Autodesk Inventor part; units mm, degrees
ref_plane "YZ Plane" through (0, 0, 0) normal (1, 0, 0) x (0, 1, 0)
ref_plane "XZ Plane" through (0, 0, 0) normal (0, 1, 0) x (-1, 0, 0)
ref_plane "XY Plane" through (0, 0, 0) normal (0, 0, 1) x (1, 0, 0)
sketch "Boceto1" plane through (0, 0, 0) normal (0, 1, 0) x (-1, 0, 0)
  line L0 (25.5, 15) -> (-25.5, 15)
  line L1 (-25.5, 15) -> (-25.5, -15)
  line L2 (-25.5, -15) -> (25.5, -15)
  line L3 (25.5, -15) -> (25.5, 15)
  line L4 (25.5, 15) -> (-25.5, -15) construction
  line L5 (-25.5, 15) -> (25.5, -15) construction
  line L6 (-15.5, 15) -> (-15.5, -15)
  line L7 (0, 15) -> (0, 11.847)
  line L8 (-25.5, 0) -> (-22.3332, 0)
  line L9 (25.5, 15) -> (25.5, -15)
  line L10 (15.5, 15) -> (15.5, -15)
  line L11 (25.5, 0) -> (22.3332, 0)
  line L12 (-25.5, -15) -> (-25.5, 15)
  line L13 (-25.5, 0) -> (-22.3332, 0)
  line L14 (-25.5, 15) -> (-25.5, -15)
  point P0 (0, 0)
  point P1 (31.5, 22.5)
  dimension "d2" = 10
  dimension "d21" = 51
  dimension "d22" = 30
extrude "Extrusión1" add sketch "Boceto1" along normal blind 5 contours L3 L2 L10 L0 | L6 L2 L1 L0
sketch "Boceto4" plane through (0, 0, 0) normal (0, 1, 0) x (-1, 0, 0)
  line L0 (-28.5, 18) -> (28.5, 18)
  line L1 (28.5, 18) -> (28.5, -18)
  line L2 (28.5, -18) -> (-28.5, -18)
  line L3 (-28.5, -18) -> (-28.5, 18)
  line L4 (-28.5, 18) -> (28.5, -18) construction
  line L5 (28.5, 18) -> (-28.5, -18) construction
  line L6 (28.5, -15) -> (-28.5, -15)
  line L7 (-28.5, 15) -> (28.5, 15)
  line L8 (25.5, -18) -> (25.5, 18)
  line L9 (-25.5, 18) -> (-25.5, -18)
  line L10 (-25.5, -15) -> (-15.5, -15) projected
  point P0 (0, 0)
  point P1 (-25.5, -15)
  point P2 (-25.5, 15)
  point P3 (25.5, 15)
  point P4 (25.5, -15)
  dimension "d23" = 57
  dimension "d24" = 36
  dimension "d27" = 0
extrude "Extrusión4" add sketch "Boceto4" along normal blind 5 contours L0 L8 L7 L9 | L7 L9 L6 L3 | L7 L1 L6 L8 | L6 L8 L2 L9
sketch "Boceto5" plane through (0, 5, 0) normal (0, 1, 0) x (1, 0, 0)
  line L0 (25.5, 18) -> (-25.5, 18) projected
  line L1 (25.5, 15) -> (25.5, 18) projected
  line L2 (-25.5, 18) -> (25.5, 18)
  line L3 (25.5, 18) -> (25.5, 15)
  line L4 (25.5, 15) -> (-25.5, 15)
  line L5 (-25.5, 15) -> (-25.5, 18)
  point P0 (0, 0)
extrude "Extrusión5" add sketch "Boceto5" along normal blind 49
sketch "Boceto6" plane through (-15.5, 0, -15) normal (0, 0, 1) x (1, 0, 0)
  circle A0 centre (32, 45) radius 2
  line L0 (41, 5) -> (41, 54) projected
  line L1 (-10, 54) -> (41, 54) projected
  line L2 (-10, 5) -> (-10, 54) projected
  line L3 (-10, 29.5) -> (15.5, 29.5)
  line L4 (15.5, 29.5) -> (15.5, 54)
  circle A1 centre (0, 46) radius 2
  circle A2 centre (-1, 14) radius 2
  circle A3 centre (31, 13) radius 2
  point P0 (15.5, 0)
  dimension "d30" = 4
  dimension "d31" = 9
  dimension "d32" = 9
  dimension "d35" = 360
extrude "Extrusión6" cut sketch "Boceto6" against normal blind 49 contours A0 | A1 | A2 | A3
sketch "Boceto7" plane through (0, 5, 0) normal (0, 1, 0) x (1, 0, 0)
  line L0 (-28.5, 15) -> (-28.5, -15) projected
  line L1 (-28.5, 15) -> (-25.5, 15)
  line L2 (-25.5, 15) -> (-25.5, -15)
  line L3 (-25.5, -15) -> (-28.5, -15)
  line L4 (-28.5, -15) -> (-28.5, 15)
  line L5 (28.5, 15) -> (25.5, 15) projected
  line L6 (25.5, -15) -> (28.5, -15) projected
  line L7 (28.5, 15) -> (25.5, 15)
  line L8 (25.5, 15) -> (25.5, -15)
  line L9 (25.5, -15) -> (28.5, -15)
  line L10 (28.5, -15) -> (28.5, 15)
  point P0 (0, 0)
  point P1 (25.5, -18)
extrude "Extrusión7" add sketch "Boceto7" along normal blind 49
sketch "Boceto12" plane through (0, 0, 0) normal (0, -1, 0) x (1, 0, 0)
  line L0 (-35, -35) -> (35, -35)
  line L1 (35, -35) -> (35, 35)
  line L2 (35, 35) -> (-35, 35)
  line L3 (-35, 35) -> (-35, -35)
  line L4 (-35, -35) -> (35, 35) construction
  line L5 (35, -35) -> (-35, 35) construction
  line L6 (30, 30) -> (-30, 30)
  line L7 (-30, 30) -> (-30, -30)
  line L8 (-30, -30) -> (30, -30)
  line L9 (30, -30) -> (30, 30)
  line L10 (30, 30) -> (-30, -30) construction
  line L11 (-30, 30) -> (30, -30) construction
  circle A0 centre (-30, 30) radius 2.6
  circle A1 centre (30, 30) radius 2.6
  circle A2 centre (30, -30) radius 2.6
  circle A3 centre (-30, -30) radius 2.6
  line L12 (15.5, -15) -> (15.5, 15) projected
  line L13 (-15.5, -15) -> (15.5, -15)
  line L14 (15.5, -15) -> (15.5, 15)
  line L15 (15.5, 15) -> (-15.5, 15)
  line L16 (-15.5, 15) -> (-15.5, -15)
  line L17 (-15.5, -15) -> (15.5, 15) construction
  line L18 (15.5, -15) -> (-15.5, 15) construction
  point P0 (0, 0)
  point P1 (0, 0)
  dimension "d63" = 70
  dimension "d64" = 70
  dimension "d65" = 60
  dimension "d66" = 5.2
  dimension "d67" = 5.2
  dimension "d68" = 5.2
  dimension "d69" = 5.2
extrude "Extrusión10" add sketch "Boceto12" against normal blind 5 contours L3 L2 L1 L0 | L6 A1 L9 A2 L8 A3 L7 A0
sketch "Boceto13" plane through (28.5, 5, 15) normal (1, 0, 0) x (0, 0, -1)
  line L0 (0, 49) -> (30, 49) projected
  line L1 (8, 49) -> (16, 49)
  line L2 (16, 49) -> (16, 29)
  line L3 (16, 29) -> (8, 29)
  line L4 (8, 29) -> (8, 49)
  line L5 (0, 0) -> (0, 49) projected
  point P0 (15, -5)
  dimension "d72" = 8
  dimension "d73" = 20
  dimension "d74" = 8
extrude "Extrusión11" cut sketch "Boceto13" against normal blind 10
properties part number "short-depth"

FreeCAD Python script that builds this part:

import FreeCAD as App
import Part
import Sketcher
from FreeCAD import Vector


def add_polygon(sketch, points):
    """Adds a closed chain of lines whose ends are joined by coincident constraints."""
    first, n = sketch.GeometryCount, len(points)
    for a, b in zip(points, points[1:] + points[:1]):
        sketch.addGeometry(Part.LineSegment(App.Vector(*a, 0), App.Vector(*b, 0)), False)
    for i in range(n):
        sketch.addConstraint(Sketcher.Constraint("Coincident", first + i, 2, first + (i + 1) % n, 1))

doc = App.newDocument("Part")
body = doc.addObject("PartDesign::Body", "Body")
body.AllowCompound = True

sketch1 = body.newObject("Sketcher::SketchObject", "Sketch")
sketch1.AttachmentSupport = (doc.getObject("XZ_Plane"), [""])
sketch1.MapMode = "FlatFace"
add_polygon(sketch1, [(-26, -15), (-26, 15), (-16, 15), (-16, -15)])
add_polygon(sketch1, [(16, -15), (16, 15), (26, 15), (26, -15)])
sketch1.addConstraint([
    Sketcher.Constraint("Vertical", 0),
    Sketcher.Constraint("Horizontal", 1),
    Sketcher.Constraint("Vertical", 2),
    Sketcher.Constraint("Horizontal", 3),
    Sketcher.Constraint("Vertical", 4),
    Sketcher.Constraint("Horizontal", 5),
    Sketcher.Constraint("Vertical", 6),
    Sketcher.Constraint("Horizontal", 7),
    Sketcher.Constraint("Symmetric", 2, 2, 4, 2, -1, 1),
    Sketcher.Constraint("Symmetric", 0, 2, 6, 2, -1, 1),
    Sketcher.Constraint("Horizontal", 1, 2, 4, 2),
    Sketcher.Constraint("DistanceX", 1, 1, 1, 2, 10.0),
    Sketcher.Constraint("DistanceY", 0, 1, 0, 2, 30.0),
    Sketcher.Constraint("DistanceX", 0, 2, 5, 2, 51.0),
])
pad1 = body.newObject("PartDesign::Pad", "Pad")
pad1.Profile = sketch1
pad1.Length = 5
pad1.Reversed = True

sketch2 = body.newObject("Sketcher::SketchObject", "Sketch001")
sketch2.AttachmentSupport = (doc.getObject("XZ_Plane"), [""])
sketch2.MapMode = "FlatFace"
add_polygon(sketch2, [(-25.5, 18), (25.5, 18), (25.5, 15), (-25.5, 15)])
add_polygon(sketch2, [(25.5, 15), (28.5, 15), (28.5, -15), (25.5, -15)])
add_polygon(sketch2, [(-28.5, 15), (-25.5, 15), (-25.5, -15), (-28.5, -15)])
add_polygon(sketch2, [(-25.5, -15), (25.5, -15), (25.5, -18), (-25.5, -18)])
sketch2.addConstraint([
    Sketcher.Constraint("Horizontal", 0),
    Sketcher.Constraint("Vertical", 1),
    Sketcher.Constraint("Horizontal", 2),
    Sketcher.Constraint("Vertical", 3),
    Sketcher.Constraint("Horizontal", 4),
    Sketcher.Constraint("Vertical", 5),
    Sketcher.Constraint("Horizontal", 6),
    Sketcher.Constraint("Vertical", 7),
    Sketcher.Constraint("Horizontal", 8),
    Sketcher.Constraint("Vertical", 9),
    Sketcher.Constraint("Horizontal", 10),
    Sketcher.Constraint("Vertical", 11),
    Sketcher.Constraint("Horizontal", 12),
    Sketcher.Constraint("Vertical", 13),
    Sketcher.Constraint("Horizontal", 14),
    Sketcher.Constraint("Vertical", 15),
    Sketcher.Constraint("Coincident", 7, 2, 1, 2),
    Sketcher.Constraint("Coincident", 8, 2, 2, 2),
    Sketcher.Constraint("Coincident", 12, 2, 6, 2),
    Sketcher.Constraint("Coincident", 15, 2, 9, 2),
    Sketcher.Constraint("Symmetric", 2, 2, 6, 2, -1, 1),
    Sketcher.Constraint("Equal", 6, 8),
    Sketcher.Constraint("Equal", 10, 1),
    Sketcher.Constraint("Equal", 3, 13),
    Sketcher.Constraint("DistanceX", 0, 1, 0, 2, 51.0),
    Sketcher.Constraint("DistanceX", 4, 1, 4, 2, 3.0),
    Sketcher.Constraint("DistanceY", 5, 2, 5, 1, 30.0),
])
pad2 = body.newObject("PartDesign::Pad", "Pad001")
pad2.Profile = sketch2
pad2.Length = 5
pad2.Reversed = True

sketch3 = body.newObject("Sketcher::SketchObject", "Sketch002")
sketch3.AttachmentSupport = (doc.getObject("XZ_Plane"), [""])
sketch3.MapMode = "FlatFace"
sketch3.AttachmentOffset = App.Placement(Vector(0, 0, -5), App.Rotation())
add_polygon(sketch3, [(25.5, -15), (25.5, -18), (-25.5, -18), (-25.5, -15)])
sketch3.addConstraint([
    Sketcher.Constraint("Vertical", 0),
    Sketcher.Constraint("Horizontal", 1),
    Sketcher.Constraint("Vertical", 2),
    Sketcher.Constraint("Horizontal", 3),
    Sketcher.Constraint("DistanceX", 1, 2, 1, 1, 51.0),
    Sketcher.Constraint("DistanceY", 0, 2, 0, 1, 3.0),
    Sketcher.Constraint("DistanceY", 0, 2, -1, 1, 18.0),
    Sketcher.Constraint("DistanceX", -1, 1, 0, 2, 25.5),
])
pad3 = body.newObject("PartDesign::Pad", "Pad002")
pad3.Profile = sketch3
pad3.Length = 49
pad3.Reversed = True

sketch4 = body.newObject("Sketcher::SketchObject", "Sketch003")
sketch4.AttachmentSupport = (doc.getObject("XY_Plane"), [""])
sketch4.MapMode = "FlatFace"
sketch4.AttachmentOffset = App.Placement(Vector(0, 0, -15), App.Rotation())
sketch4.addGeometry([
    Part.Circle(Vector(16.5, 45, 0), Vector(0, 0, 1), 2),
    Part.Circle(Vector(-15.5, 46, 0), Vector(0, 0, 1), 2),
    Part.Circle(Vector(-16.5, 14, 0), Vector(0, 0, 1), 2),
    Part.Circle(Vector(15.5, 13, 0), Vector(0, 0, 1), 2),
], False)
sketch4.addConstraint([
    Sketcher.Constraint("Equal", 0, 1),
    Sketcher.Constraint("Equal", 1, 2),
    Sketcher.Constraint("Equal", 2, 3),
    Sketcher.Constraint("Diameter", 0, 4.0),
    Sketcher.Constraint("DistanceY", -1, 1, 0, 3, 45.0),
    Sketcher.Constraint("DistanceY", -1, 1, 1, 3, 46.0),
    Sketcher.Constraint("DistanceY", -1, 1, 2, 3, 14.0),
    Sketcher.Constraint("DistanceY", -1, 1, 3, 3, 13.0),
    Sketcher.Constraint("DistanceX", 1, 3, 0, 3, 32.0),
    Sketcher.Constraint("DistanceX", 2, 3, 1, 3, 1.0),
    Sketcher.Constraint("DistanceX", 3, 3, 0, 3, 1.0),
    Sketcher.Constraint("DistanceX", -1, 1, 0, 3, 16.5),
])
pocket1 = body.newObject("PartDesign::Pocket", "Pocket")
pocket1.Profile = sketch4
pocket1.Length = 49

sketch5 = body.newObject("Sketcher::SketchObject", "Sketch004")
sketch5.AttachmentSupport = (doc.getObject("XZ_Plane"), [""])
sketch5.MapMode = "FlatFace"
sketch5.AttachmentOffset = App.Placement(Vector(0, 0, -5), App.Rotation())
add_polygon(sketch5, [(-25.5, -15), (-28.5, -15), (-28.5, 15), (-25.5, 15)])
add_polygon(sketch5, [(28.5, 15), (28.5, -15), (25.5, -15), (25.5, 15)])
sketch5.addConstraint([
    Sketcher.Constraint("Horizontal", 0),
    Sketcher.Constraint("Vertical", 1),
    Sketcher.Constraint("Horizontal", 2),
    Sketcher.Constraint("Vertical", 3),
    Sketcher.Constraint("Vertical", 4),
    Sketcher.Constraint("Horizontal", 5),
    Sketcher.Constraint("Vertical", 6),
    Sketcher.Constraint("Horizontal", 7),
    Sketcher.Constraint("Symmetric", 1, 2, 4, 2, -1, 1),
    Sketcher.Constraint("Symmetric", 3, 2, 6, 2, -1, 1),
    Sketcher.Constraint("Horizontal", 3, 2, 4, 2),
    Sketcher.Constraint("DistanceX", 0, 2, 0, 1, 3.0),
    Sketcher.Constraint("DistanceY", 1, 1, 1, 2, 30.0),
    Sketcher.Constraint("DistanceX", 3, 2, 4, 2, 54.0),
])
pad4 = body.newObject("PartDesign::Pad", "Pad003")
pad4.Profile = sketch5
pad4.Length = 49
pad4.Reversed = True

sketch6 = body.newObject("Sketcher::SketchObject", "Sketch005")
sketch6.AttachmentSupport = (doc.getObject("XZ_Plane"), [""])
sketch6.MapMode = "FlatFace"
add_polygon(sketch6, [(-35, 35), (-35, -35), (35, -35), (35, 35)])
sketch6.addGeometry(Part.Circle(Vector(-30, 30, 0), Vector(0, 0, 1), 2.6), False)
sketch6.addGeometry(Part.Circle(Vector(-30, -30, 0), Vector(0, 0, 1), 2.6), False)
sketch6.addGeometry(Part.Circle(Vector(30, -30, 0), Vector(0, 0, 1), 2.6), False)
sketch6.addGeometry(Part.Circle(Vector(30, 30, 0), Vector(0, 0, 1), 2.6), False)
add_polygon(sketch6, [(15.5, 15), (15.5, -15), (-15.5, -15), (-15.5, 15)])
sketch6.addConstraint([
    Sketcher.Constraint("Vertical", 0),
    Sketcher.Constraint("Horizontal", 1),
    Sketcher.Constraint("Vertical", 2),
    Sketcher.Constraint("Horizontal", 3),
    Sketcher.Constraint("Vertical", 8),
    Sketcher.Constraint("Horizontal", 9),
    Sketcher.Constraint("Vertical", 10),
    Sketcher.Constraint("Horizontal", 11),
    Sketcher.Constraint("Equal", 4, 5),
    Sketcher.Constraint("Equal", 5, 6),
    Sketcher.Constraint("Equal", 6, 7),
    Sketcher.Constraint("Symmetric", 4, 3, 6, 3, -1, 1),
    Sketcher.Constraint("Symmetric", 5, 3, 7, 3, -1, 1),
    Sketcher.Constraint("Symmetric", 0, 2, 2, 2, -1, 1),
    Sketcher.Constraint("Symmetric", 8, 2, 10, 2, -1, 1),
    Sketcher.Constraint("Symmetric", 5, 3, 6, 3, -2),
    Sketcher.Constraint("Equal", 3, 0),
    Sketcher.Constraint("Diameter", 4, 5.2),
    Sketcher.Constraint("DistanceX", 1, 1, 1, 2, 70.0),
    Sketcher.Constraint("DistanceY", 5, 3, 4, 3, 60.0),
    Sketcher.Constraint("DistanceX", 5, 3, 6, 3, 60.0),
    Sketcher.Constraint("DistanceX", 9, 2, 9, 1, 31.0),
    Sketcher.Constraint("DistanceY", 8, 2, 8, 1, 30.0),
])
pad5 = body.newObject("PartDesign::Pad", "Pad004")
pad5.Profile = sketch6
pad5.Length = 5
pad5.Reversed = True

sketch7 = body.newObject("Sketcher::SketchObject", "Sketch006")
sketch7.AttachmentSupport = (doc.getObject("YZ_Plane"), [""])
sketch7.MapMode = "FlatFace"
sketch7.AttachmentOffset = App.Placement(Vector(0, 0, 28.5), App.Rotation())
add_polygon(sketch7, [(54, -1), (54, 7), (34, 7), (34, -1)])
sketch7.addConstraint([
    Sketcher.Constraint("Vertical", 0),
    Sketcher.Constraint("Horizontal", 1),
    Sketcher.Constraint("Vertical", 2),
    Sketcher.Constraint("Horizontal", 3),
    Sketcher.Constraint("DistanceX", 1, 2, 1, 1, 20.0),
    Sketcher.Constraint("DistanceY", 0, 1, 0, 2, 8.0),
    Sketcher.Constraint("DistanceX", -1, 1, 0, 2, 54.0),
    Sketcher.Constraint("DistanceY", -1, 1, 0, 2, 7.0),
])
pocket2 = body.newObject("PartDesign::Pocket", "Pocket001")
pocket2.Profile = sketch7
pocket2.Length = 10

doc.recompute()
